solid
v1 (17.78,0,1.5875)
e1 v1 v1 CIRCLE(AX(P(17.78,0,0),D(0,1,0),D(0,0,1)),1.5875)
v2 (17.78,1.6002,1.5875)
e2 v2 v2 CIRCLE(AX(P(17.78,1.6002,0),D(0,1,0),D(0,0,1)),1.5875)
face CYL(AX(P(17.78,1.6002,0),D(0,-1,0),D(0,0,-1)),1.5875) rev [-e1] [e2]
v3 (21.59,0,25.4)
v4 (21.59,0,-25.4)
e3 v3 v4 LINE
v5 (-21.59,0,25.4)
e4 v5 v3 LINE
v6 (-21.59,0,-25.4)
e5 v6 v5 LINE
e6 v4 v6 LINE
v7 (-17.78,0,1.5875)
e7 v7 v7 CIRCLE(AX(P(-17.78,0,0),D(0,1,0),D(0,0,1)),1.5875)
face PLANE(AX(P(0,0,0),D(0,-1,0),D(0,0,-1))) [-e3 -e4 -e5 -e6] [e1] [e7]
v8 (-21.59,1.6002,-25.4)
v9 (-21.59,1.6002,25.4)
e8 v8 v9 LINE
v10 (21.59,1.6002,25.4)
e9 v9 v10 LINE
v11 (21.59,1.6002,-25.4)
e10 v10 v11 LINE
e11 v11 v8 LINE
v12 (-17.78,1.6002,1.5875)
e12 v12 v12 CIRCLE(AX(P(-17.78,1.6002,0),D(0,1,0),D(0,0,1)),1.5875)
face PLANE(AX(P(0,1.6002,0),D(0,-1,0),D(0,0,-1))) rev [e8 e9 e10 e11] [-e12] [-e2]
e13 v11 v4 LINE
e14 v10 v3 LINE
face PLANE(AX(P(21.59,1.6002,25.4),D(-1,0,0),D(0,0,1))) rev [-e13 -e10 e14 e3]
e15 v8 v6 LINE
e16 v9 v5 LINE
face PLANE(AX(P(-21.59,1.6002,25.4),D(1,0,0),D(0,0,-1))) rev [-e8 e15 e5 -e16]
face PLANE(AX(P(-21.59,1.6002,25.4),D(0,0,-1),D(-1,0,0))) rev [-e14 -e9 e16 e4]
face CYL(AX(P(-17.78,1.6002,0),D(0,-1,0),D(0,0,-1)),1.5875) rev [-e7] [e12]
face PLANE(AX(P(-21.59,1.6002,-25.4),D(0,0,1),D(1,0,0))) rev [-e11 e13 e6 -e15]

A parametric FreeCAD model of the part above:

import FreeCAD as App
import Part
import Sketcher
from FreeCAD import Vector
Q = App.Units.Quantity


def add_polygon(sketch, points):
    """Adds a closed chain of lines whose ends are joined by coincident constraints."""
    first, n = sketch.GeometryCount, len(points)
    for a, b in zip(points, points[1:] + points[:1]):
        sketch.addGeometry(Part.LineSegment(App.Vector(*a, 0), App.Vector(*b, 0)), False)
    for i in range(n):
        sketch.addConstraint(Sketcher.Constraint("Coincident", first + i, 2, first + (i + 1) % n, 1))

doc = App.newDocument("Part")
body = doc.addObject("PartDesign::Body", "Body")

sketch1 = body.newObject("Sketcher::SketchObject", "Sketch")
sketch1.AttachmentSupport = (doc.getObject("XZ_Plane"), [""])
sketch1.MapMode = "FlatFace"
add_polygon(sketch1, [(-21.6, -25.4), (-21.6, 25.4), (21.6, 25.4), (21.6, -25.4)])
sketch1.addGeometry(Part.Circle(Vector(-17.8, 0, 0), Vector(0, 0, 1), 1.6), False)
sketch1.addGeometry(Part.Circle(Vector(17.8, 0, 0), Vector(0, 0, 1), 1.6), False)
sketch1.addConstraint([
    Sketcher.Constraint("Vertical", 0),
    Sketcher.Constraint("Horizontal", 1),
    Sketcher.Constraint("Vertical", 2),
    Sketcher.Constraint("Horizontal", 3),
    Sketcher.Constraint("Equal", 4, 5),
    Sketcher.Constraint("Symmetric", 4, 3, 5, 3, -1, 1),
    Sketcher.Constraint("Symmetric", 0, 2, 2, 2, -1, 1),
    Sketcher.Constraint("PointOnObject", 4, 3, -1),
    Sketcher.Constraint("DistanceY", 0, 1, 0, 2, Q("2 in")),
    Sketcher.Constraint("Diameter", 4, Q("0.125 in")),
    Sketcher.Constraint("DistanceX", 1, 1, 1, 2, Q("1.7 in")),
    Sketcher.Constraint("DistanceX", 4, 3, -1, 1, Q("0.7 in")),
])
pad1 = body.newObject("PartDesign::Pad", "Pad")
pad1.Profile = sketch1
pad1.Length = Q("0.063 in")
pad1.Reversed = True

doc.recompute()
